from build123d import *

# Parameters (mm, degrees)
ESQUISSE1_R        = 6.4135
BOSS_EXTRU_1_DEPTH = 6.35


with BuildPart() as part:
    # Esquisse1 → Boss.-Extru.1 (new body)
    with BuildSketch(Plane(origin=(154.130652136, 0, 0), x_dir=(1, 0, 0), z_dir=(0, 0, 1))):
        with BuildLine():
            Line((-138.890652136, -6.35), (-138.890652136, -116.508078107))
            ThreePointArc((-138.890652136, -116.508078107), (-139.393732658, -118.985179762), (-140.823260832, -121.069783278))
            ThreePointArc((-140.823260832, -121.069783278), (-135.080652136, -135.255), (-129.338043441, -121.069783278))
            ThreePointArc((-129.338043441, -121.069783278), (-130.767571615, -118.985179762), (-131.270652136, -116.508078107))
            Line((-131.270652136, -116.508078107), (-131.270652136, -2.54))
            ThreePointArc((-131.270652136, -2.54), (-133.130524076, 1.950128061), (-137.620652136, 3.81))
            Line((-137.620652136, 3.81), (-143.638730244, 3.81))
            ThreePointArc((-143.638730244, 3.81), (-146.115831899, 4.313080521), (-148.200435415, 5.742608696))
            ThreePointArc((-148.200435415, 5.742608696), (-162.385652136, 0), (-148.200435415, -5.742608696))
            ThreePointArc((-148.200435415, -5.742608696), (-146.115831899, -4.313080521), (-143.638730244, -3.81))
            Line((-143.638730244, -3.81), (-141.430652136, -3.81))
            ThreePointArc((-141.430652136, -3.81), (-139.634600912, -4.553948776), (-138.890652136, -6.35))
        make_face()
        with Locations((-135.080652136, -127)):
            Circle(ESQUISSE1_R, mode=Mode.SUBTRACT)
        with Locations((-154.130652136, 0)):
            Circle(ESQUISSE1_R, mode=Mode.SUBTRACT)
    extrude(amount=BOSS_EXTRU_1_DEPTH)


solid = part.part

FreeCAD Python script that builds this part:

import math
import FreeCAD as App
import Part
import Sketcher
Q = App.Units.Quantity

doc = App.newDocument("Part")
body = doc.addObject("PartDesign::Body", "Body")

# Sketch on XY plane
sketch1 = body.newObject("Sketcher::SketchObject", "Sketch")
sketch1.AttachmentSupport = (doc.getObject("XY_Plane"), [""])
sketch1.MapMode = "FlatFace"
sketch1.addGeometry([
    Part.LineSegment(App.Vector(15.24, -6.35, 0), App.Vector(15.24, -116.508078, 0)),  # 0
    Part.ArcOfCircle(Part.Circle(App.Vector(8.89, -116.508078, 0), App.Vector(0, 0, 1), 6.35), math.radians(-45.92079), math.radians(0)),  # 1
    Part.ArcOfCircle(Part.Circle(App.Vector(19.05, -127, 0), App.Vector(0, 0, 1), 8.255), math.radians(134.07921), math.radians(405.92079)),  # 2
    Part.ArcOfCircle(Part.Circle(App.Vector(29.21, -116.508078, 0), App.Vector(0, 0, 1), 6.35), math.radians(180), math.radians(225.92079)),  # 3
    Part.LineSegment(App.Vector(22.86, -116.508078, 0), App.Vector(22.86, -2.54, 0)),  # 4
    Part.ArcOfCircle(Part.Circle(App.Vector(16.51, -2.54, 0), App.Vector(0, 0, 1), 6.35), math.radians(0), math.radians(90)),  # 5
    Part.LineSegment(App.Vector(16.51, 3.81, 0), App.Vector(10.491922, 3.81, 0)),  # 6
    Part.ArcOfCircle(Part.Circle(App.Vector(10.491922, 10.16, 0), App.Vector(0, 0, 1), 6.35), math.radians(-135.92079), math.radians(-90)),  # 7
    Part.ArcOfCircle(Part.Circle(App.Vector(0, 0, 0), App.Vector(0, 0, 1), 8.255), math.radians(44.07921), math.radians(315.92079)),  # 8
    Part.ArcOfCircle(Part.Circle(App.Vector(10.491922, -10.16, 0), App.Vector(0, 0, 1), 6.35), math.radians(90), math.radians(135.92079)),  # 9
    Part.LineSegment(App.Vector(10.491922, -3.81, 0), App.Vector(12.7, -3.81, 0)),  # 10
    Part.ArcOfCircle(Part.Circle(App.Vector(12.7, -6.35, 0), App.Vector(0, 0, 1), 2.54), math.radians(0), math.radians(90)),  # 11
    Part.Circle(App.Vector(19.05, -127, 0), App.Vector(0, 0, 1), 6.4135),  # 12
    Part.Circle(App.Vector(0, 0, 0), App.Vector(0, 0, 1), 6.4135),  # 13
], False)
sketch1.addConstraint([
    Sketcher.Constraint("Tangent", 0, 2, 1, 2),
    Sketcher.Constraint("Tangent", 1, 1, 2, 1),
    Sketcher.Constraint("Tangent", 2, 2, 3, 2),
    Sketcher.Constraint("Tangent", 3, 1, 4, 1),
    Sketcher.Constraint("Tangent", 4, 2, 5, 1),
    Sketcher.Constraint("Tangent", 5, 2, 6, 1),
    Sketcher.Constraint("Tangent", 6, 2, 7, 2),
    Sketcher.Constraint("Tangent", 7, 1, 8, 1),
    Sketcher.Constraint("Tangent", 8, 2, 9, 2),
    Sketcher.Constraint("Tangent", 9, 1, 10, 1),
    Sketcher.Constraint("Tangent", 10, 2, 11, 2),
    Sketcher.Constraint("Tangent", 11, 1, 0, 1),
    Sketcher.Constraint("Vertical", 0),
    Sketcher.Constraint("Vertical", 4),
    Sketcher.Constraint("Horizontal", 6),
    Sketcher.Constraint("Horizontal", 10),
    Sketcher.Constraint("Coincident", 8, 3, -1, 1),
    Sketcher.Constraint("Coincident", 13, 3, -1, 1),
    Sketcher.Constraint("Coincident", 12, 3, 2, 3),
    Sketcher.Constraint("Equal", 1, 3),
    Sketcher.Constraint("Equal", 3, 5),
    Sketcher.Constraint("Equal", 5, 7),
    Sketcher.Constraint("Equal", 2, 8),
    Sketcher.Constraint("Equal", 7, 9),
    Sketcher.Constraint("Equal", 12, 13),
    Sketcher.Constraint("Horizontal", 1, 3, 3, 3),
    Sketcher.Constraint("Vertical", 7, 3, 9, 3),
    Sketcher.Constraint("Radius", 11, Q("0.1 in")),
    Sketcher.Constraint("Radius", 1, Q("0.25 in")),
    Sketcher.Constraint("Diameter", 12, Q("0.505 in")),
    Sketcher.Constraint("DistanceY", 2, 3, -1, 1, Q("5 in")),
    Sketcher.Constraint("Radius", 2, Q("0.325 in")),
    Sketcher.Constraint("DistanceY", 5, 3, -1, 1, Q("0.1 in")),
    Sketcher.Constraint("DistanceX", -1, 1, 11, 3, Q("0.5 in")),
    Sketcher.Constraint("DistanceX", -1, 1, 3, 1, Q("0.9 in")),
])
pad1 = body.newObject("PartDesign::Pad", "Pad")
pad1.Profile = sketch1
pad1.Length = Q("0.25 in")

doc.recompute()
